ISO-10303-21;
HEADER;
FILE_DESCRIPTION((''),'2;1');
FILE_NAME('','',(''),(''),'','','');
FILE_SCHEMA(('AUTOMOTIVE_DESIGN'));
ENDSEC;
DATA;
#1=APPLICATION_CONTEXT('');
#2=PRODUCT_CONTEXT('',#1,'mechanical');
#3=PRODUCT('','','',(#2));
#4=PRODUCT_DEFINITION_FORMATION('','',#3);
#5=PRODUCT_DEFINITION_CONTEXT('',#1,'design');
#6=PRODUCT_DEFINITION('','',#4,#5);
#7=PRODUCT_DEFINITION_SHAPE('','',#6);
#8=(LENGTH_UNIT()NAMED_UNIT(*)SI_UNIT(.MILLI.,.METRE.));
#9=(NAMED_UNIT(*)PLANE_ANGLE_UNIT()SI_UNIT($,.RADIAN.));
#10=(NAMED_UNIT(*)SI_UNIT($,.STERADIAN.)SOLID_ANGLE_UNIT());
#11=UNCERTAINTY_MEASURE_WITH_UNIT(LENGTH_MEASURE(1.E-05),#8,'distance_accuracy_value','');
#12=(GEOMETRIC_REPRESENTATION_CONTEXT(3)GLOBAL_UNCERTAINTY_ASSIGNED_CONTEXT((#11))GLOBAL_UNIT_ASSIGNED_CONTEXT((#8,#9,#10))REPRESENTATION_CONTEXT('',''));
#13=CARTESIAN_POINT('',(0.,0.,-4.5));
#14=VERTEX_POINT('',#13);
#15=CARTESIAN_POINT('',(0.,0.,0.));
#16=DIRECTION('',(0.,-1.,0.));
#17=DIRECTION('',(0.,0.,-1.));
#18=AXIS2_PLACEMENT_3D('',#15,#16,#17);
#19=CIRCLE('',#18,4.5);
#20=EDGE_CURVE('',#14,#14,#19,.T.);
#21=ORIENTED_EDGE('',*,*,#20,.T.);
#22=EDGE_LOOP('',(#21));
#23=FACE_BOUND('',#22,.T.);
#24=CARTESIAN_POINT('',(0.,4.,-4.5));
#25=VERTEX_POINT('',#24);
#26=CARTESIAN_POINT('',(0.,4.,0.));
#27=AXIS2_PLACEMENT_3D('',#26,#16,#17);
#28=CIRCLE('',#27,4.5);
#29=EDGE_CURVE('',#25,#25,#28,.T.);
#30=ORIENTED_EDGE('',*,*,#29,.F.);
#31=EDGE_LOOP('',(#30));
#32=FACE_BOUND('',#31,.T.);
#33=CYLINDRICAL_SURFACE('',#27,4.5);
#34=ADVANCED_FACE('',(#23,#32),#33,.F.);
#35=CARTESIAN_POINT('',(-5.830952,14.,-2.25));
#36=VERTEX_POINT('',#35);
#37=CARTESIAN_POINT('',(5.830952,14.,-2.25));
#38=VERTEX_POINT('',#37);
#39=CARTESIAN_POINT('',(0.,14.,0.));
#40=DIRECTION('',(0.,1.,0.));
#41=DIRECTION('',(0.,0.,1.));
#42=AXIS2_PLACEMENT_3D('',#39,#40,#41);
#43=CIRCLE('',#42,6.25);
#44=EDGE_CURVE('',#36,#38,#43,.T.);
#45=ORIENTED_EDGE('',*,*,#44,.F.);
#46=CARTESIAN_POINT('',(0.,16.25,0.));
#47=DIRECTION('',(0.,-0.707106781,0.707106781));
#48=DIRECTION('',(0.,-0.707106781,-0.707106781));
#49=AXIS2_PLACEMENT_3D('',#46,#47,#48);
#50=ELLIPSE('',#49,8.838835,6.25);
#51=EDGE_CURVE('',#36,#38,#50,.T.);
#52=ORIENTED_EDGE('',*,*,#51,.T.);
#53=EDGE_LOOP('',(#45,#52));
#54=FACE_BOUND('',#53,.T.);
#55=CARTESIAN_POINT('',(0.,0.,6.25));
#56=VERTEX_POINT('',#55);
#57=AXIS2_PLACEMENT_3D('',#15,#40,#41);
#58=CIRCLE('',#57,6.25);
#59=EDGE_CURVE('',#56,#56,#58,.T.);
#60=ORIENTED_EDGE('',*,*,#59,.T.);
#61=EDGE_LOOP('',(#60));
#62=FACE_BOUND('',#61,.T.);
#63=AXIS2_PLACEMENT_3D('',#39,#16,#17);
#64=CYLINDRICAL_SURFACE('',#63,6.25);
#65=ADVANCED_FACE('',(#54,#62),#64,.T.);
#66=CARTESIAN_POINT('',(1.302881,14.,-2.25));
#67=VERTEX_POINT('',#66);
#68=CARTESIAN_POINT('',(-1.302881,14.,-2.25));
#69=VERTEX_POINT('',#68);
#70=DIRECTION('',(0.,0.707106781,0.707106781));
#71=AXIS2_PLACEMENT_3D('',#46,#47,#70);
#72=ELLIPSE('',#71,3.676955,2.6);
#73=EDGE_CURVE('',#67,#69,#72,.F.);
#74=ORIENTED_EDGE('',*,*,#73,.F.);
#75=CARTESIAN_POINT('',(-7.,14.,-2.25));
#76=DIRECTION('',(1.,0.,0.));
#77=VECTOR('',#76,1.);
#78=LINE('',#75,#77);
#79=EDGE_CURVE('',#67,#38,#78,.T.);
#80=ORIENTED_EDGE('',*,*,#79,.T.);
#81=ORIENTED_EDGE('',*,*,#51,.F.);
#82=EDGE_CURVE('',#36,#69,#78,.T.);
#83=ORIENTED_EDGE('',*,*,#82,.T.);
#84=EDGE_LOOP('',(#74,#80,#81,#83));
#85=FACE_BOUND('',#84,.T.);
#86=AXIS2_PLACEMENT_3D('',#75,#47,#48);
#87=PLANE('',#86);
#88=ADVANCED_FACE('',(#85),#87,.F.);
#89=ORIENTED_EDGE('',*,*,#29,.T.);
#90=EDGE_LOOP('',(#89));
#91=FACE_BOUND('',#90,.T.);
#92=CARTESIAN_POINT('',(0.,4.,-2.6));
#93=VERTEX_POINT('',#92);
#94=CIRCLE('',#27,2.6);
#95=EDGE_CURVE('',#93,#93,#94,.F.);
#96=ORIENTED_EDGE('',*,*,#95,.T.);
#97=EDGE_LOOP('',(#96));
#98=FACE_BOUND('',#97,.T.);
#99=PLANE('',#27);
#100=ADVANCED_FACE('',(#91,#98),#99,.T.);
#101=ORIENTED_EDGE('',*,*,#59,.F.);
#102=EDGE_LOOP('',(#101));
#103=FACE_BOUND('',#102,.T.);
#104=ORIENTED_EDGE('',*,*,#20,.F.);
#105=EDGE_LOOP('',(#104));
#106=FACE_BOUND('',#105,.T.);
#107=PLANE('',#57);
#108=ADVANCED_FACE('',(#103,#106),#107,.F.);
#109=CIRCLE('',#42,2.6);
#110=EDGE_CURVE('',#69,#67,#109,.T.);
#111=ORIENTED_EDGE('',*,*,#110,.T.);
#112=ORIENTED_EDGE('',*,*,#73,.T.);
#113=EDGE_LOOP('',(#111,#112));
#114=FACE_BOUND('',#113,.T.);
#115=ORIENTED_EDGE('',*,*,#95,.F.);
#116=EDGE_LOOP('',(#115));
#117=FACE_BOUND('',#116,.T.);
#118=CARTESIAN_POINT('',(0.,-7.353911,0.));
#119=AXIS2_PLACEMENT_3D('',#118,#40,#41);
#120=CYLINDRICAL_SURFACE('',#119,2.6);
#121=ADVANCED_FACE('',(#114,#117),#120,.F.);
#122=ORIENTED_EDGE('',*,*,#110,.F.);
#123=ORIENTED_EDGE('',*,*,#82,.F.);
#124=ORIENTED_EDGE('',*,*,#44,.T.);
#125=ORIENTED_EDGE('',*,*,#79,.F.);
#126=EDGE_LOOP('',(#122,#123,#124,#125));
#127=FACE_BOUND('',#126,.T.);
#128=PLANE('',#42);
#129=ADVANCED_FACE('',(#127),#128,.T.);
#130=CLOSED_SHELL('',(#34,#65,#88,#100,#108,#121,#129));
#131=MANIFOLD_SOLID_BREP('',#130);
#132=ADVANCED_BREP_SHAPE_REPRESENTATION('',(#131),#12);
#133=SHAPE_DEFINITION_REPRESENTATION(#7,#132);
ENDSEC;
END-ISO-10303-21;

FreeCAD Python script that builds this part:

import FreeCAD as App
import Part
import Sketcher
from FreeCAD import Vector

doc = App.newDocument("Part")
body = doc.addObject("PartDesign::Body", "Body")

# Sketch on XZ plane
sketch1 = doc.addObject("Sketcher::SketchObject", "Sketch")
body.addObject(sketch1)
sketch1.AttachmentSupport = (doc.XZ_Plane, [""])
sketch1.MapMode = "FlatFace"
sketch1.addGeometry(Part.Circle(Vector(0, 0, 0), Vector(0, 0, 1), 6), False)
sketch1.addConstraint(Sketcher.Constraint("Coincident", 0, 3, -1, 1))
sketch1.addConstraint(Sketcher.Constraint("Diameter", 0, 12.5))
pad1 = doc.addObject("PartDesign::Pad", "Pad")
body.addObject(pad1)
pad1.Profile = sketch1
pad1.Length = 14
pad1.Reversed = True

# Sketch on XZ plane
sketch2 = doc.addObject("Sketcher::SketchObject", "Sketch001")
body.addObject(sketch2)
sketch2.AttachmentSupport = (doc.XZ_Plane, [""])
sketch2.MapMode = "FlatFace"
sketch2.AttachmentOffset = App.Placement(Vector(0, 0, -14), App.Rotation())
sketch2.addGeometry(Part.Circle(Vector(0, 0, 0), Vector(0, 0, 1), 2.6), False)
sketch2.addConstraint(Sketcher.Constraint("Coincident", 0, 3, -1, 1))
sketch2.addConstraint(Sketcher.Constraint("Diameter", 0, 5.2))
pocket1 = doc.addObject("PartDesign::Pocket", "Pocket")
body.addObject(pocket1)
pocket1.Profile = sketch2
pocket1.Length = 14
pocket1.Reversed = True

# Sketch on YZ plane
sketch3 = doc.addObject("Sketcher::SketchObject", "Sketch002")
body.addObject(sketch3)
sketch3.AttachmentSupport = (doc.YZ_Plane, [""])
sketch3.MapMode = "FlatFace"
sketch3.addGeometry(Part.LineSegment(Vector(14, -2.2, 0), Vector(10, -6.2, 0)), False)
sketch3.addGeometry(Part.LineSegment(Vector(10, -6.2, 0), Vector(14, -6.2, 0)), False)
sketch3.addGeometry(Part.LineSegment(Vector(14, -6.2, 0), Vector(14, -2.2, 0)), False)
sketch3.addConstraint(Sketcher.Constraint("Coincident", 0, 2, 1, 1))
sketch3.addConstraint(Sketcher.Constraint("Coincident", 1, 2, 2, 1))
sketch3.addConstraint(Sketcher.Constraint("Coincident", 2, 2, 0, 1))
sketch3.addConstraint(Sketcher.Constraint("Horizontal", 1))
sketch3.addConstraint(Sketcher.Constraint("Vertical", 2))
sketch3.addConstraint(Sketcher.Constraint("Equal", 1, 2))
sketch3.addConstraint(Sketcher.Constraint("DistanceX", 1, 1, 1, 2, 4.0))
sketch3.addConstraint(Sketcher.Constraint("DistanceX", -1, 1, 0, 2, 10.0))
sketch3.addConstraint(Sketcher.Constraint("DistanceY", 0, 2, -1, 1, 6.25))
pocket2 = doc.addObject("PartDesign::Pocket", "Pocket001")
body.addObject(pocket2)
pocket2.Profile = sketch3
pocket2.Length = 14
pocket2.Midplane = True

# Sketch on XZ plane
sketch4 = doc.addObject("Sketcher::SketchObject", "Sketch003")
body.addObject(sketch4)
sketch4.AttachmentSupport = (doc.XZ_Plane, [""])
sketch4.MapMode = "FlatFace"
sketch4.addGeometry(Part.Circle(Vector(0, 0, 0), Vector(0, 0, 1), 4.5), False)
sketch4.addConstraint(Sketcher.Constraint("Coincident", 0, 3, -1, 1))
sketch4.addConstraint(Sketcher.Constraint("Diameter", 0, 9.0))
pocket3 = doc.addObject("PartDesign::Pocket", "Pocket002")
body.addObject(pocket3)
pocket3.Profile = sketch4
pocket3.Length = 4

doc.recompute()
